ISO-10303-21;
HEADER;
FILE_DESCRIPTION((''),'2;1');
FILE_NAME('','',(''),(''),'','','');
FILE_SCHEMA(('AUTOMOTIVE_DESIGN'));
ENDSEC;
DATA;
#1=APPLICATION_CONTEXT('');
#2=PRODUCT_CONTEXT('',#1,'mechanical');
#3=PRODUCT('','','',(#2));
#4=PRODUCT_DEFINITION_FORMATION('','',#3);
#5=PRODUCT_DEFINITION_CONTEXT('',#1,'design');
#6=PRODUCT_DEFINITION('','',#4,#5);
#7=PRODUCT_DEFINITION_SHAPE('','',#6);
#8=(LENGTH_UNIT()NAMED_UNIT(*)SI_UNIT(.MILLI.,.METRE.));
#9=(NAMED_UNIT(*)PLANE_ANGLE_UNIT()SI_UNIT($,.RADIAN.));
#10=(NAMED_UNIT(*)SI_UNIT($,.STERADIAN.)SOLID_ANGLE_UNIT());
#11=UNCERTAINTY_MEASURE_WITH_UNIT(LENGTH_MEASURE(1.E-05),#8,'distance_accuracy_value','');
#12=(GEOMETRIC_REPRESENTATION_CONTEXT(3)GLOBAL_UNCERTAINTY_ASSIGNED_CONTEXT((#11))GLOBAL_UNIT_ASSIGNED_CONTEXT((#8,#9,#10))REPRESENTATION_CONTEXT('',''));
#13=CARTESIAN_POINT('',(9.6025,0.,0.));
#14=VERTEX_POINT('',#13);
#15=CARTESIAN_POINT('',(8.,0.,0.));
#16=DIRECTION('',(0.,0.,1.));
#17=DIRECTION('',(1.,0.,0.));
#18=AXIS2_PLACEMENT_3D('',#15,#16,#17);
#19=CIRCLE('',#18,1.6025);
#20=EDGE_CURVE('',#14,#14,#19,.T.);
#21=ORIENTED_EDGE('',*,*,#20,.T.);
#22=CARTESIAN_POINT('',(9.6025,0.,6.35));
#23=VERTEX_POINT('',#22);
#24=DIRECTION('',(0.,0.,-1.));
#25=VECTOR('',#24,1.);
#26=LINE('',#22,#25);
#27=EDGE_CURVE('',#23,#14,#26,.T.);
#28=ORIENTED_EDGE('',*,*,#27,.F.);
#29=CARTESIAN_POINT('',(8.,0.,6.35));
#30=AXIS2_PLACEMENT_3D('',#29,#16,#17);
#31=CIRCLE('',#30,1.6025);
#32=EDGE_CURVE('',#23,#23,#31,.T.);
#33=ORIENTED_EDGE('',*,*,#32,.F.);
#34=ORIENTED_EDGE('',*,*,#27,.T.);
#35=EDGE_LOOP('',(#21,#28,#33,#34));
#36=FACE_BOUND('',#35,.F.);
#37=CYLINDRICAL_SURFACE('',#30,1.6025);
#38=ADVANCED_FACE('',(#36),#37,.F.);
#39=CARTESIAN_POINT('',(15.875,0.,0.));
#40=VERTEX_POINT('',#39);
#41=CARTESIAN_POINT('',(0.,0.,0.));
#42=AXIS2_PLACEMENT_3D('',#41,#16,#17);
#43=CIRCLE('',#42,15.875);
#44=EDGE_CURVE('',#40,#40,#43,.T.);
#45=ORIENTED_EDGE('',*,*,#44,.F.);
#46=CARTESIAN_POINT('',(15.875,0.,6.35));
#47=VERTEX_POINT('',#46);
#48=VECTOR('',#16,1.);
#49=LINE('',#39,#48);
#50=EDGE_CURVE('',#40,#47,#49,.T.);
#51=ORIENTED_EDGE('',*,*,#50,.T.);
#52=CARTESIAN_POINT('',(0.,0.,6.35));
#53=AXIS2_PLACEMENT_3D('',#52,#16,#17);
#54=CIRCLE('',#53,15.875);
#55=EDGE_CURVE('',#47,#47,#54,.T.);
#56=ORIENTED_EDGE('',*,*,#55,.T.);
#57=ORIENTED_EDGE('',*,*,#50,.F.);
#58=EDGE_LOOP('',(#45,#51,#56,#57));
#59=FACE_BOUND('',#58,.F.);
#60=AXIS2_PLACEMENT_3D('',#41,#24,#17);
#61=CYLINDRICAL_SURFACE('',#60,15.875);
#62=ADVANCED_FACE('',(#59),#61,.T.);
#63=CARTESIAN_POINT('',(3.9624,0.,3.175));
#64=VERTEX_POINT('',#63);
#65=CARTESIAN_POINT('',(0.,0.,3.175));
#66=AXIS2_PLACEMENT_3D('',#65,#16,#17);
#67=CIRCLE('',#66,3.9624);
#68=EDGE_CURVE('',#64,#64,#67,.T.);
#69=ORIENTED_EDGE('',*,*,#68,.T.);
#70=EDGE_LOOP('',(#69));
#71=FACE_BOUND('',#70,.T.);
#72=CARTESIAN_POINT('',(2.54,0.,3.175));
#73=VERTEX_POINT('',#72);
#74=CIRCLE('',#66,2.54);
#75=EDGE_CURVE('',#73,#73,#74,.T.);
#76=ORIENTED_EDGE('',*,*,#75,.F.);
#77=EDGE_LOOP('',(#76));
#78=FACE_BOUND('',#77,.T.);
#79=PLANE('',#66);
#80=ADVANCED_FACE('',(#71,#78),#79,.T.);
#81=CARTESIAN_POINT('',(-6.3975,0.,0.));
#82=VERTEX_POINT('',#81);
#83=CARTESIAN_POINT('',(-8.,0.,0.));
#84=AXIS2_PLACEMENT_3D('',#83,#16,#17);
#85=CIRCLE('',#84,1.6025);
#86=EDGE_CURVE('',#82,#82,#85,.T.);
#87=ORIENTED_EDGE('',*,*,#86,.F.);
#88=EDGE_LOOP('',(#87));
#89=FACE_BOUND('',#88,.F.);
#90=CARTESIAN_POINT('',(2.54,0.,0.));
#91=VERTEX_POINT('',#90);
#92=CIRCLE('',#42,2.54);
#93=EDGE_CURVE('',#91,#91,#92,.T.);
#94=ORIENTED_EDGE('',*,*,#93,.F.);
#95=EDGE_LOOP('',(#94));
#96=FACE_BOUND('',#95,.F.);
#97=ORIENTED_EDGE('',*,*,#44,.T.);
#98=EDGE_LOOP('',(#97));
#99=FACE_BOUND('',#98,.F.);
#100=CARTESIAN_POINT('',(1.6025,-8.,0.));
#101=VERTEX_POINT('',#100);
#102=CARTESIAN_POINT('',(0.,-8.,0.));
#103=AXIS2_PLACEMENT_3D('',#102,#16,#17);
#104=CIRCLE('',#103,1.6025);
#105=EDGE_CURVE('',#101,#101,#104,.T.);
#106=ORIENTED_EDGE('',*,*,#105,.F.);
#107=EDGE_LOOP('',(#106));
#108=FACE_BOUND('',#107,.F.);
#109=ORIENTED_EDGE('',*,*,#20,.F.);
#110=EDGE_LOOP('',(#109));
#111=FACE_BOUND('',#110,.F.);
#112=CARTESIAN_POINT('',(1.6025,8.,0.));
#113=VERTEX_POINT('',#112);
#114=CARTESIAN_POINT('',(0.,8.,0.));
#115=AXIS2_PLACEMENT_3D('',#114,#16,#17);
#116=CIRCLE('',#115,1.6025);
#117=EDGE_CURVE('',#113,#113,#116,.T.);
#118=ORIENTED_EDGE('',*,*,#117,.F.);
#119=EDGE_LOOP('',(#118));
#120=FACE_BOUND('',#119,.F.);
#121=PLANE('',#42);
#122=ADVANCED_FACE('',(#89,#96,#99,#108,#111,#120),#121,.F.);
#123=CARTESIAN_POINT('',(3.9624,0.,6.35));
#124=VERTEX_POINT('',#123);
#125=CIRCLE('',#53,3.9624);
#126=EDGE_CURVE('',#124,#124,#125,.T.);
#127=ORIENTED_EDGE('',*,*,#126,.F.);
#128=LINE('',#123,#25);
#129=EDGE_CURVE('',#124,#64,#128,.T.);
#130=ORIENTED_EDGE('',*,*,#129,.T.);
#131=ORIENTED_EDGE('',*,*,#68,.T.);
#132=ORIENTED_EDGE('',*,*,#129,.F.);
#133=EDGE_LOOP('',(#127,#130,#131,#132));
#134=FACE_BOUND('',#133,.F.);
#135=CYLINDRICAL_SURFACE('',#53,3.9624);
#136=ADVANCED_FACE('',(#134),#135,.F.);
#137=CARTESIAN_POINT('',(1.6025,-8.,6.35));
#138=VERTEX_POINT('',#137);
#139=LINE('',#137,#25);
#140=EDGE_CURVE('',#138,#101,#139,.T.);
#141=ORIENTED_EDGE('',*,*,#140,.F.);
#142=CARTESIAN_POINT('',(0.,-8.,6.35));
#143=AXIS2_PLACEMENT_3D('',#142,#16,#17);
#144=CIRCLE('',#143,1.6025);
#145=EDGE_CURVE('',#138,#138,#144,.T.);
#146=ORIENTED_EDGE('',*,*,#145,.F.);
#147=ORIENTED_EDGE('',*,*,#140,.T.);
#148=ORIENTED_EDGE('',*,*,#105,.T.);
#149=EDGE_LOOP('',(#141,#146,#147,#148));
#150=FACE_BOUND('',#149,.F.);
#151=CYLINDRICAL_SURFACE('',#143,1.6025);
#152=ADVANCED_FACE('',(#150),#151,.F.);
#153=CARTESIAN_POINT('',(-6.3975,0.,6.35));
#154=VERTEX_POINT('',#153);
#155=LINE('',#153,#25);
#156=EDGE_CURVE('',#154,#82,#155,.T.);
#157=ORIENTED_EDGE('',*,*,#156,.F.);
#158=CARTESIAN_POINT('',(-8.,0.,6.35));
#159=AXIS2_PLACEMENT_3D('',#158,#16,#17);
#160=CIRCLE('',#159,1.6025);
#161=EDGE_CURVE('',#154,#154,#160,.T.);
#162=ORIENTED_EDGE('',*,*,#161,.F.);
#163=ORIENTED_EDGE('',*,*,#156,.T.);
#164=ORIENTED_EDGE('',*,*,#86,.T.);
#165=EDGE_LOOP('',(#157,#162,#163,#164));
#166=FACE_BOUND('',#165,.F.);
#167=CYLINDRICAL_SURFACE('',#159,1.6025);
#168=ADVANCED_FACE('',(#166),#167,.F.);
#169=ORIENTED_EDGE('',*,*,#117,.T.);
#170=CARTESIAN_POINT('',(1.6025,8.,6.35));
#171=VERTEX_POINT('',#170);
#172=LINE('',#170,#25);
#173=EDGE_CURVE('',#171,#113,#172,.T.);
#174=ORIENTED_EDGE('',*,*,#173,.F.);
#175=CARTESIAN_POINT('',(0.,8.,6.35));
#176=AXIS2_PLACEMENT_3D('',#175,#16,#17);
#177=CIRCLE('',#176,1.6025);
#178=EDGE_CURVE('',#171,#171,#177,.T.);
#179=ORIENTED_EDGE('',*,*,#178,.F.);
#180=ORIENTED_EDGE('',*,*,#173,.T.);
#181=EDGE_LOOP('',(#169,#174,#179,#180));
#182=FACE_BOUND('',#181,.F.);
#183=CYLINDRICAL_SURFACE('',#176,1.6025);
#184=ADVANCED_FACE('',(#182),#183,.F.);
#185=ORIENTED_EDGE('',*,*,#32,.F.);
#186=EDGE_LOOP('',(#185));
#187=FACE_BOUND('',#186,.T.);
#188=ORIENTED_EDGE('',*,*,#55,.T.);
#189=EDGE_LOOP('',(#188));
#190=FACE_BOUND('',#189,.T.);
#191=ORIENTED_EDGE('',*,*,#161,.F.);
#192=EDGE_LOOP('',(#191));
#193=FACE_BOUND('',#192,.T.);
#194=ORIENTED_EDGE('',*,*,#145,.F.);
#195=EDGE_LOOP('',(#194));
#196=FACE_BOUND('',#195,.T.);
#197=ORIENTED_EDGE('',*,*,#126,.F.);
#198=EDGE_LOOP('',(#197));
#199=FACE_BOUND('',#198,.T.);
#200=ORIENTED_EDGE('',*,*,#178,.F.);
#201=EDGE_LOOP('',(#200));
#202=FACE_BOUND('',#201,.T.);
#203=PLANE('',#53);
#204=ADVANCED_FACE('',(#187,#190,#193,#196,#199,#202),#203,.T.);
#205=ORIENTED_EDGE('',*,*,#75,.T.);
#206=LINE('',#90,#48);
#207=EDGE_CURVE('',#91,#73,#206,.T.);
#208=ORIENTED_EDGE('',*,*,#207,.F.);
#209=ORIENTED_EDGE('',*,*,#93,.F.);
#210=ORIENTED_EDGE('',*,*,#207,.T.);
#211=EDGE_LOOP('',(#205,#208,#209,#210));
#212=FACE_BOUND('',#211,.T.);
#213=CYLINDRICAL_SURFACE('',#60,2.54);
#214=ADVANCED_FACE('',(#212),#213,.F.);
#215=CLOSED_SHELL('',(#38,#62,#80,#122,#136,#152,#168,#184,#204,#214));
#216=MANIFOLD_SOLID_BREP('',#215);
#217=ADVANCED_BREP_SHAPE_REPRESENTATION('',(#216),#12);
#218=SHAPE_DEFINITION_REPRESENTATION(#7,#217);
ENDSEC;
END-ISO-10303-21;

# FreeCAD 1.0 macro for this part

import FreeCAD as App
import Part
import Sketcher

V = App.Vector
Q = App.Units.Quantity

doc = App.newDocument("Part")
body = doc.addObject("PartDesign::Body", "Body")

# Sketch on XY plane
sketch1 = body.newObject("Sketcher::SketchObject", "Sketch")
sketch1.AttachmentSupport = (doc.getObject("XY_Plane"), [""])
sketch1.MapMode = "FlatFace"
sketch1.addGeometry([
    Part.Circle(V(0, 0, 0), V(0, 0, 1), 15.9),
    Part.Circle(V(0, 0, 0), V(0, 0, 1), 2.5),
], False)
sketch1.addConstraint([
    Sketcher.Constraint("Coincident", 0, 3, -1, 1),
    Sketcher.Constraint("Coincident", 1, 3, -1, 1),
    Sketcher.Constraint("Diameter", 1, Q("0.2 in")),
    Sketcher.Constraint("Diameter", 0, Q("1.25 in")),
])
pad1 = body.newObject("PartDesign::Pad", "Pad")
pad1.Profile = sketch1
pad1.Length = Q("0.25 in")

# Sketch on XY plane
sketch2 = body.newObject("Sketcher::SketchObject", "Sketch001")
sketch2.AttachmentSupport = (doc.getObject("XY_Plane"), [""])
sketch2.MapMode = "FlatFace"
sketch2.AttachmentOffset = App.Placement(V(0, 0, 0.25 * 25.4), App.Rotation())
sketch2.addGeometry([
    Part.Circle(V(0, -8, 0), V(0, 0, 1), 1.6),
    Part.Circle(V(8, 0, 0), V(0, 0, 1), 1.6),
    Part.Circle(V(-8, 0, 0), V(0, 0, 1), 1.6),
    Part.Circle(V(0, 8, 0), V(0, 0, 1), 1.6),
], False)
sketch2.addConstraint([
    Sketcher.Constraint("Equal", 0, 1),
    Sketcher.Constraint("Equal", 1, 2),
    Sketcher.Constraint("Equal", 2, 3),
    Sketcher.Constraint("Symmetric", 1, 3, 2, 3, -1, 1),
    Sketcher.Constraint("Symmetric", 0, 3, 3, 3, -1, 1),
    Sketcher.Constraint("PointOnObject", 0, 3, -2),
    Sketcher.Constraint("PointOnObject", 1, 3, -1),
    Sketcher.Constraint("Diameter", 0, Q("3.205 mm")),
    Sketcher.Constraint("DistanceY", 0, 3, -1, 1, Q("8 mm")),
    Sketcher.Constraint("DistanceX", -1, 1, 1, 3, Q("8 mm")),
])
pocket1 = body.newObject("PartDesign::Pocket", "Pocket")
pocket1.Profile = sketch2
pocket1.Length = Q("0.25 in")

# Sketch on XY plane
sketch3 = body.newObject("Sketcher::SketchObject", "Sketch002")
sketch3.AttachmentSupport = (doc.getObject("XY_Plane"), [""])
sketch3.MapMode = "FlatFace"
sketch3.AttachmentOffset = App.Placement(V(0, 0, 0.25 * 25.4), App.Rotation())
sketch3.addGeometry([
    Part.Circle(V(0, 0, 0), V(0, 0, 1), 4),
    Part.Circle(V(0, 0, 0), V(0, 0, 1), 2.5),
], False)
sketch3.addConstraint([
    Sketcher.Constraint("Coincident", 0, 3, -1, 1),
    Sketcher.Constraint("Coincident", 1, 3, -1, 1),
    Sketcher.Constraint("Diameter", 0, Q("0.312 in")),
    Sketcher.Constraint("Diameter", 1, Q("0.2 in")),
])
pocket2 = body.newObject("PartDesign::Pocket", "Pocket001")
pocket2.Profile = sketch3
pocket2.Length = Q("0.125 in")

doc.recompute()
